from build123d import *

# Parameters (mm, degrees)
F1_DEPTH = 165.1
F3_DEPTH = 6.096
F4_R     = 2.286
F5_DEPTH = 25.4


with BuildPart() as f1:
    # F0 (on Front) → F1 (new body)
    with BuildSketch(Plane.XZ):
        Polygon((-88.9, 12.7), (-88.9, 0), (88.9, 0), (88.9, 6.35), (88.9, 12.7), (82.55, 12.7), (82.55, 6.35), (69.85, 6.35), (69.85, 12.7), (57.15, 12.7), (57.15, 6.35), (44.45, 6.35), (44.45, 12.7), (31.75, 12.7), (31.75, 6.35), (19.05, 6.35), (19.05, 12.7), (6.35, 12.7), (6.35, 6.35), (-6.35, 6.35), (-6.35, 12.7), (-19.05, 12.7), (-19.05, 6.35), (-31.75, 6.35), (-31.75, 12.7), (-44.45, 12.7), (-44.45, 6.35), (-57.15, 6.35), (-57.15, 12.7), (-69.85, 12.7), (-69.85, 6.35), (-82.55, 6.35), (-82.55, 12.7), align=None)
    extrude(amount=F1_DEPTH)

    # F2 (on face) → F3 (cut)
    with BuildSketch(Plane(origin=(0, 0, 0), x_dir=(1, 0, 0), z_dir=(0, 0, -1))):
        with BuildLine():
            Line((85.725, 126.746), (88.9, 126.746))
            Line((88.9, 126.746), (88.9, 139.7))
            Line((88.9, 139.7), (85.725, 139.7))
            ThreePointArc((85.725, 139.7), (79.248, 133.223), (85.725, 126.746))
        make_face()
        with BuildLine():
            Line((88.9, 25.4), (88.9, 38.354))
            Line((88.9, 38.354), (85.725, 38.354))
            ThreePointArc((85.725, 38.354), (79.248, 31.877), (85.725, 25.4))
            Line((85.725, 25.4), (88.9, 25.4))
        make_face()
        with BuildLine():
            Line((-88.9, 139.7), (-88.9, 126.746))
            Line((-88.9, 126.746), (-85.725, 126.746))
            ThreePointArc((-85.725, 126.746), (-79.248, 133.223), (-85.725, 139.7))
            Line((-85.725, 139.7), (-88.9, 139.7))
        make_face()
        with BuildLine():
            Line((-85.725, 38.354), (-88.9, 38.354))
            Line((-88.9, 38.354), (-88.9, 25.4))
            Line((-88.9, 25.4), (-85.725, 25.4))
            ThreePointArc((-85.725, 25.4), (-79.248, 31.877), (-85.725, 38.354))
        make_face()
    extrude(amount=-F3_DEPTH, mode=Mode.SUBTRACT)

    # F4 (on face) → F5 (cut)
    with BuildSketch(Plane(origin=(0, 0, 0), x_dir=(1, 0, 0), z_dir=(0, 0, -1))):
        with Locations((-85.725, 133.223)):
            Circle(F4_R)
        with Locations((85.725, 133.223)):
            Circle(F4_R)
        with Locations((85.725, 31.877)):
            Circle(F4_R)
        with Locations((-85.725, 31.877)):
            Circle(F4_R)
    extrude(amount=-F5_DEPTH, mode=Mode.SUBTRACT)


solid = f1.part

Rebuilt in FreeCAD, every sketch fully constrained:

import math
import FreeCAD as App
import Part
import Sketcher
from FreeCAD import Vector
Q = App.Units.Quantity

doc = App.newDocument("Part")
body = doc.addObject("PartDesign::Body", "Body")

# Sketch on XZ plane
sketch1 = doc.addObject("Sketcher::SketchObject", "Sketch")
body.addObject(sketch1)
sketch1.AttachmentSupport = (doc.XZ_Plane, [""])
sketch1.MapMode = "FlatFace"
sketch1.addGeometry(Part.LineSegment(Vector(-89, 13, 0), Vector(-89, 0, 0)), False)
sketch1.addGeometry(Part.LineSegment(Vector(-89, 0, 0), Vector(89, 0, 0)), False)
sketch1.addGeometry(Part.LineSegment(Vector(89, 0, 0), Vector(89, 13, 0)), False)
sketch1.addGeometry(Part.LineSegment(Vector(89, 13, 0), Vector(83, 13, 0)), False)
sketch1.addGeometry(Part.LineSegment(Vector(83, 13, 0), Vector(83, 6, 0)), False)
sketch1.addGeometry(Part.LineSegment(Vector(83, 6, 0), Vector(70, 6, 0)), False)
sketch1.addGeometry(Part.LineSegment(Vector(70, 6, 0), Vector(70, 13, 0)), False)
sketch1.addGeometry(Part.LineSegment(Vector(70, 13, 0), Vector(57, 13, 0)), False)
sketch1.addGeometry(Part.LineSegment(Vector(57, 13, 0), Vector(57, 6, 0)), False)
sketch1.addGeometry(Part.LineSegment(Vector(57, 6, 0), Vector(44, 6, 0)), False)
sketch1.addGeometry(Part.LineSegment(Vector(44, 6, 0), Vector(44, 13, 0)), False)
sketch1.addGeometry(Part.LineSegment(Vector(44, 13, 0), Vector(32, 13, 0)), False)
sketch1.addGeometry(Part.LineSegment(Vector(32, 13, 0), Vector(32, 6, 0)), False)
sketch1.addGeometry(Part.LineSegment(Vector(32, 6, 0), Vector(19, 6, 0)), False)
sketch1.addGeometry(Part.LineSegment(Vector(19, 6, 0), Vector(19, 13, 0)), False)
sketch1.addGeometry(Part.LineSegment(Vector(19, 13, 0), Vector(6, 13, 0)), False)
sketch1.addGeometry(Part.LineSegment(Vector(6, 13, 0), Vector(6, 6, 0)), False)
sketch1.addGeometry(Part.LineSegment(Vector(6, 6, 0), Vector(-6, 6, 0)), False)
sketch1.addGeometry(Part.LineSegment(Vector(-6, 6, 0), Vector(-6, 13, 0)), False)
sketch1.addGeometry(Part.LineSegment(Vector(-6, 13, 0), Vector(-19, 13, 0)), False)
sketch1.addGeometry(Part.LineSegment(Vector(-19, 13, 0), Vector(-19, 6, 0)), False)
sketch1.addGeometry(Part.LineSegment(Vector(-19, 6, 0), Vector(-32, 6, 0)), False)
sketch1.addGeometry(Part.LineSegment(Vector(-32, 6, 0), Vector(-32, 13, 0)), False)
sketch1.addGeometry(Part.LineSegment(Vector(-32, 13, 0), Vector(-44, 13, 0)), False)
sketch1.addGeometry(Part.LineSegment(Vector(-44, 13, 0), Vector(-44, 6, 0)), False)
sketch1.addGeometry(Part.LineSegment(Vector(-44, 6, 0), Vector(-57, 6, 0)), False)
sketch1.addGeometry(Part.LineSegment(Vector(-57, 6, 0), Vector(-57, 13, 0)), False)
sketch1.addGeometry(Part.LineSegment(Vector(-57, 13, 0), Vector(-70, 13, 0)), False)
sketch1.addGeometry(Part.LineSegment(Vector(-70, 13, 0), Vector(-70, 6, 0)), False)
sketch1.addGeometry(Part.LineSegment(Vector(-70, 6, 0), Vector(-83, 6, 0)), False)
sketch1.addGeometry(Part.LineSegment(Vector(-83, 6, 0), Vector(-83, 13, 0)), False)
sketch1.addGeometry(Part.LineSegment(Vector(-83, 13, 0), Vector(-89, 13, 0)), False)
sketch1.addConstraint(Sketcher.Constraint("Coincident", 0, 2, 1, 1))
sketch1.addConstraint(Sketcher.Constraint("Coincident", 1, 2, 2, 1))
sketch1.addConstraint(Sketcher.Constraint("Coincident", 2, 2, 3, 1))
sketch1.addConstraint(Sketcher.Constraint("Coincident", 3, 2, 4, 1))
sketch1.addConstraint(Sketcher.Constraint("Coincident", 4, 2, 5, 1))
sketch1.addConstraint(Sketcher.Constraint("Coincident", 5, 2, 6, 1))
sketch1.addConstraint(Sketcher.Constraint("Coincident", 6, 2, 7, 1))
sketch1.addConstraint(Sketcher.Constraint("Coincident", 7, 2, 8, 1))
sketch1.addConstraint(Sketcher.Constraint("Coincident", 8, 2, 9, 1))
sketch1.addConstraint(Sketcher.Constraint("Coincident", 9, 2, 10, 1))
sketch1.addConstraint(Sketcher.Constraint("Coincident", 10, 2, 11, 1))
sketch1.addConstraint(Sketcher.Constraint("Coincident", 11, 2, 12, 1))
sketch1.addConstraint(Sketcher.Constraint("Coincident", 12, 2, 13, 1))
sketch1.addConstraint(Sketcher.Constraint("Coincident", 13, 2, 14, 1))
sketch1.addConstraint(Sketcher.Constraint("Coincident", 14, 2, 15, 1))
sketch1.addConstraint(Sketcher.Constraint("Coincident", 15, 2, 16, 1))
sketch1.addConstraint(Sketcher.Constraint("Coincident", 16, 2, 17, 1))
sketch1.addConstraint(Sketcher.Constraint("Coincident", 17, 2, 18, 1))
sketch1.addConstraint(Sketcher.Constraint("Coincident", 18, 2, 19, 1))
sketch1.addConstraint(Sketcher.Constraint("Coincident", 19, 2, 20, 1))
sketch1.addConstraint(Sketcher.Constraint("Coincident", 20, 2, 21, 1))
sketch1.addConstraint(Sketcher.Constraint("Coincident", 21, 2, 22, 1))
sketch1.addConstraint(Sketcher.Constraint("Coincident", 22, 2, 23, 1))
sketch1.addConstraint(Sketcher.Constraint("Coincident", 23, 2, 24, 1))
sketch1.addConstraint(Sketcher.Constraint("Coincident", 24, 2, 25, 1))
sketch1.addConstraint(Sketcher.Constraint("Coincident", 25, 2, 26, 1))
sketch1.addConstraint(Sketcher.Constraint("Coincident", 26, 2, 27, 1))
sketch1.addConstraint(Sketcher.Constraint("Coincident", 27, 2, 28, 1))
sketch1.addConstraint(Sketcher.Constraint("Coincident", 28, 2, 29, 1))
sketch1.addConstraint(Sketcher.Constraint("Coincident", 29, 2, 30, 1))
sketch1.addConstraint(Sketcher.Constraint("Coincident", 30, 2, 31, 1))
sketch1.addConstraint(Sketcher.Constraint("Coincident", 31, 2, 0, 1))
sketch1.addConstraint(Sketcher.Constraint("Vertical", 0))
sketch1.addConstraint(Sketcher.Constraint("Horizontal", 1))
sketch1.addConstraint(Sketcher.Constraint("Vertical", 2))
sketch1.addConstraint(Sketcher.Constraint("Horizontal", 3))
sketch1.addConstraint(Sketcher.Constraint("Vertical", 4))
sketch1.addConstraint(Sketcher.Constraint("Horizontal", 5))
sketch1.addConstraint(Sketcher.Constraint("Vertical", 6))
sketch1.addConstraint(Sketcher.Constraint("Horizontal", 7))
sketch1.addConstraint(Sketcher.Constraint("Vertical", 8))
sketch1.addConstraint(Sketcher.Constraint("Horizontal", 9))
sketch1.addConstraint(Sketcher.Constraint("Vertical", 10))
sketch1.addConstraint(Sketcher.Constraint("Horizontal", 11))
sketch1.addConstraint(Sketcher.Constraint("Vertical", 12))
sketch1.addConstraint(Sketcher.Constraint("Horizontal", 13))
sketch1.addConstraint(Sketcher.Constraint("Vertical", 14))
sketch1.addConstraint(Sketcher.Constraint("Horizontal", 15))
sketch1.addConstraint(Sketcher.Constraint("Vertical", 16))
sketch1.addConstraint(Sketcher.Constraint("Horizontal", 17))
sketch1.addConstraint(Sketcher.Constraint("Vertical", 18))
sketch1.addConstraint(Sketcher.Constraint("Horizontal", 19))
sketch1.addConstraint(Sketcher.Constraint("Vertical", 20))
sketch1.addConstraint(Sketcher.Constraint("Horizontal", 21))
sketch1.addConstraint(Sketcher.Constraint("Vertical", 22))
sketch1.addConstraint(Sketcher.Constraint("Horizontal", 23))
sketch1.addConstraint(Sketcher.Constraint("Vertical", 24))
sketch1.addConstraint(Sketcher.Constraint("Horizontal", 25))
sketch1.addConstraint(Sketcher.Constraint("Vertical", 26))
sketch1.addConstraint(Sketcher.Constraint("Horizontal", 27))
sketch1.addConstraint(Sketcher.Constraint("Vertical", 28))
sketch1.addConstraint(Sketcher.Constraint("Horizontal", 29))
sketch1.addConstraint(Sketcher.Constraint("Vertical", 30))
sketch1.addConstraint(Sketcher.Constraint("Horizontal", 31))
sketch1.addConstraint(Sketcher.Constraint("Symmetric", 0, 2, 1, 2, -1, 1))
sketch1.addConstraint(Sketcher.Constraint("Symmetric", 15, 2, 18, 2, -2))
sketch1.addConstraint(Sketcher.Constraint("Symmetric", 13, 2, 20, 2, -2))
sketch1.addConstraint(Sketcher.Constraint("Symmetric", 11, 2, 22, 2, -2))
sketch1.addConstraint(Sketcher.Constraint("Symmetric", 9, 2, 24, 2, -2))
sketch1.addConstraint(Sketcher.Constraint("Symmetric", 7, 2, 26, 2, -2))
sketch1.addConstraint(Sketcher.Constraint("Symmetric", 5, 2, 28, 2, -2))
sketch1.addConstraint(Sketcher.Constraint("Symmetric", 3, 2, 30, 2, -2))
sketch1.addConstraint(Sketcher.Constraint("Horizontal", 3, 2, 6, 2))
sketch1.addConstraint(Sketcher.Constraint("Horizontal", 5, 2, 8, 2))
sketch1.addConstraint(Sketcher.Constraint("Horizontal", 7, 2, 10, 2))
sketch1.addConstraint(Sketcher.Constraint("Horizontal", 9, 2, 12, 2))
sketch1.addConstraint(Sketcher.Constraint("Horizontal", 11, 2, 14, 2))
sketch1.addConstraint(Sketcher.Constraint("Horizontal", 13, 2, 16, 2))
sketch1.addConstraint(Sketcher.Constraint("Equal", 5, 7))
sketch1.addConstraint(Sketcher.Constraint("Equal", 7, 9))
sketch1.addConstraint(Sketcher.Constraint("Equal", 9, 11))
sketch1.addConstraint(Sketcher.Constraint("Equal", 11, 13))
sketch1.addConstraint(Sketcher.Constraint("Equal", 13, 15))
sketch1.addConstraint(Sketcher.Constraint("Equal", 15, 17))
sketch1.addConstraint(Sketcher.Constraint("Equal", 29, 0))
sketch1.addConstraint(Sketcher.Constraint("Equal", 31, 4))
sketch1.addConstraint(Sketcher.Constraint("DistanceX", 1, 1, 1, 2, Q("7 in")))
sketch1.addConstraint(Sketcher.Constraint("DistanceX", 5, 2, 5, 1, Q("0.5 in")))
pad1 = doc.addObject("PartDesign::Pad", "Pad")
body.addObject(pad1)
pad1.Profile = sketch1
pad1.Length = Q("6.5 in")

# Sketch on XY plane
sketch2 = doc.addObject("Sketcher::SketchObject", "Sketch001")
body.addObject(sketch2)
sketch2.AttachmentSupport = (doc.XY_Plane, [""])
sketch2.MapMode = "FlatFace"
sketch2.addGeometry(Part.LineSegment(Vector(85.7, -126.7, 0), Vector(88.9, -126.7, 0)), False)
sketch2.addGeometry(Part.LineSegment(Vector(88.9, -126.7, 0), Vector(88.9, -139.7, 0)), False)
sketch2.addGeometry(Part.LineSegment(Vector(88.9, -139.7, 0), Vector(85.7, -139.7, 0)), False)
sketch2.addGeometry(Part.ArcOfCircle(Part.Circle(Vector(85.7, -133.2, 0), Vector(0, 0, 1), 6.5), math.radians(90), math.radians(270)), False)
sketch2.addGeometry(Part.LineSegment(Vector(88.9, -25.4, 0), Vector(88.9, -38.4, 0)), False)
sketch2.addGeometry(Part.LineSegment(Vector(88.9, -38.4, 0), Vector(85.7, -38.4, 0)), False)
sketch2.addGeometry(Part.ArcOfCircle(Part.Circle(Vector(85.7, -31.9, 0), Vector(0, 0, 1), 6.5), math.radians(90), math.radians(270)), False)
sketch2.addGeometry(Part.LineSegment(Vector(85.7, -25.4, 0), Vector(88.9, -25.4, 0)), False)
sketch2.addGeometry(Part.LineSegment(Vector(-88.9, -139.7, 0), Vector(-88.9, -126.7, 0)), False)
sketch2.addGeometry(Part.LineSegment(Vector(-88.9, -126.7, 0), Vector(-85.7, -126.7, 0)), False)
sketch2.addGeometry(Part.ArcOfCircle(Part.Circle(Vector(-85.7, -133.2, 0), Vector(0, 0, 1), 6.5), math.radians(-90), math.radians(90)), False)
sketch2.addGeometry(Part.LineSegment(Vector(-85.7, -139.7, 0), Vector(-88.9, -139.7, 0)), False)
sketch2.addGeometry(Part.LineSegment(Vector(-85.7, -38.4, 0), Vector(-88.9, -38.4, 0)), False)
sketch2.addGeometry(Part.LineSegment(Vector(-88.9, -38.4, 0), Vector(-88.9, -25.4, 0)), False)
sketch2.addGeometry(Part.LineSegment(Vector(-88.9, -25.4, 0), Vector(-85.7, -25.4, 0)), False)
sketch2.addGeometry(Part.ArcOfCircle(Part.Circle(Vector(-85.7, -31.9, 0), Vector(0, 0, 1), 6.5), math.radians(-90), math.radians(90)), False)
sketch2.addConstraint(Sketcher.Constraint("Coincident", 0, 2, 1, 1))
sketch2.addConstraint(Sketcher.Constraint("Coincident", 1, 2, 2, 1))
sketch2.addConstraint(Sketcher.Constraint("Tangent", 2, 2, 3, 2))
sketch2.addConstraint(Sketcher.Constraint("Tangent", 3, 1, 0, 1))
sketch2.addConstraint(Sketcher.Constraint("Coincident", 4, 2, 5, 1))
sketch2.addConstraint(Sketcher.Constraint("Tangent", 5, 2, 6, 2))
sketch2.addConstraint(Sketcher.Constraint("Tangent", 6, 1, 7, 1))
sketch2.addConstraint(Sketcher.Constraint("Coincident", 7, 2, 4, 1))
sketch2.addConstraint(Sketcher.Constraint("Coincident", 8, 2, 9, 1))
sketch2.addConstraint(Sketcher.Constraint("Tangent", 9, 2, 10, 2))
sketch2.addConstraint(Sketcher.Constraint("Tangent", 10, 1, 11, 1))
sketch2.addConstraint(Sketcher.Constraint("Coincident", 11, 2, 8, 1))
sketch2.addConstraint(Sketcher.Constraint("Coincident", 12, 2, 13, 1))
sketch2.addConstraint(Sketcher.Constraint("Coincident", 13, 2, 14, 1))
sketch2.addConstraint(Sketcher.Constraint("Tangent", 14, 2, 15, 2))
sketch2.addConstraint(Sketcher.Constraint("Tangent", 15, 1, 12, 1))
sketch2.addConstraint(Sketcher.Constraint("Horizontal", 0))
sketch2.addConstraint(Sketcher.Constraint("Vertical", 1))
sketch2.addConstraint(Sketcher.Constraint("Horizontal", 2))
sketch2.addConstraint(Sketcher.Constraint("Vertical", 4))
sketch2.addConstraint(Sketcher.Constraint("Horizontal", 5))
sketch2.addConstraint(Sketcher.Constraint("Horizontal", 7))
sketch2.addConstraint(Sketcher.Constraint("Vertical", 8))
sketch2.addConstraint(Sketcher.Constraint("Horizontal", 9))
sketch2.addConstraint(Sketcher.Constraint("Horizontal", 11))
sketch2.addConstraint(Sketcher.Constraint("Horizontal", 12))
sketch2.addConstraint(Sketcher.Constraint("Vertical", 13))
sketch2.addConstraint(Sketcher.Constraint("Horizontal", 14))
sketch2.addConstraint(Sketcher.Constraint("Equal", 3, 6))
sketch2.addConstraint(Sketcher.Constraint("Equal", 6, 10))
sketch2.addConstraint(Sketcher.Constraint("Equal", 10, 15))
sketch2.addConstraint(Sketcher.Constraint("Symmetric", 3, 3, 10, 3, -2))
sketch2.addConstraint(Sketcher.Constraint("Symmetric", 6, 3, 15, 3, -2))
sketch2.addConstraint(Sketcher.Constraint("Vertical", 3, 3, 6, 3))
sketch2.addConstraint(Sketcher.Constraint("Vertical", 1, 2, 4, 2))
sketch2.addConstraint(Sketcher.Constraint("Vertical", 11, 2, 12, 2))
sketch2.addConstraint(Sketcher.Constraint("Equal", 7, 9))
sketch2.addConstraint(Sketcher.Constraint("DistanceY", 6, 1, -1, 1, Q("1 in")))
sketch2.addConstraint(Sketcher.Constraint("Radius", 3, Q("0.255 in")))
sketch2.addConstraint(Sketcher.Constraint("DistanceX", -1, 1, 0, 2, Q("3.5 in")))
sketch2.addConstraint(Sketcher.Constraint("DistanceY", 1, 2, -1, 1, Q("5.5 in")))
sketch2.addConstraint(Sketcher.Constraint("DistanceX", 0, 1, 0, 2, Q("0.125 in")))
pocket1 = doc.addObject("PartDesign::Pocket", "Pocket")
body.addObject(pocket1)
pocket1.Profile = sketch2
pocket1.Length = Q("0.24 in")
pocket1.Reversed = True

# Sketch on XY plane
sketch3 = doc.addObject("Sketcher::SketchObject", "Sketch002")
body.addObject(sketch3)
sketch3.AttachmentSupport = (doc.XY_Plane, [""])
sketch3.MapMode = "FlatFace"
sketch3.addGeometry(Part.Circle(Vector(-85.7, -133.2, 0), Vector(0, 0, 1), 2.3), False)
sketch3.addGeometry(Part.Circle(Vector(85.7, -133.2, 0), Vector(0, 0, 1), 2.3), False)
sketch3.addGeometry(Part.Circle(Vector(85.7, -31.9, 0), Vector(0, 0, 1), 2.3), False)
sketch3.addGeometry(Part.Circle(Vector(-85.7, -31.9, 0), Vector(0, 0, 1), 2.3), False)
sketch3.addConstraint(Sketcher.Constraint("Equal", 0, 1))
sketch3.addConstraint(Sketcher.Constraint("Equal", 1, 2))
sketch3.addConstraint(Sketcher.Constraint("Equal", 2, 3))
sketch3.addConstraint(Sketcher.Constraint("Symmetric", 0, 3, 1, 3, -2))
sketch3.addConstraint(Sketcher.Constraint("Symmetric", 2, 3, 3, 3, -2))
sketch3.addConstraint(Sketcher.Constraint("Vertical", 1, 3, 2, 3))
sketch3.addConstraint(Sketcher.Constraint("Diameter", 0, Q("0.18 in")))
sketch3.addConstraint(Sketcher.Constraint("DistanceX", 0, 3, 1, 3, Q("6.75 in")))
sketch3.addConstraint(Sketcher.Constraint("DistanceY", 1, 3, 2, 3, Q("3.99 in")))
sketch3.addConstraint(Sketcher.Constraint("DistanceY", 0, 3, -1, 1, Q("5.245 in")))
pocket2 = doc.addObject("PartDesign::Pocket", "Pocket001")
body.addObject(pocket2)
pocket2.Profile = sketch3
pocket2.Length = Q("1 in")
pocket2.Reversed = True

doc.recompute()
